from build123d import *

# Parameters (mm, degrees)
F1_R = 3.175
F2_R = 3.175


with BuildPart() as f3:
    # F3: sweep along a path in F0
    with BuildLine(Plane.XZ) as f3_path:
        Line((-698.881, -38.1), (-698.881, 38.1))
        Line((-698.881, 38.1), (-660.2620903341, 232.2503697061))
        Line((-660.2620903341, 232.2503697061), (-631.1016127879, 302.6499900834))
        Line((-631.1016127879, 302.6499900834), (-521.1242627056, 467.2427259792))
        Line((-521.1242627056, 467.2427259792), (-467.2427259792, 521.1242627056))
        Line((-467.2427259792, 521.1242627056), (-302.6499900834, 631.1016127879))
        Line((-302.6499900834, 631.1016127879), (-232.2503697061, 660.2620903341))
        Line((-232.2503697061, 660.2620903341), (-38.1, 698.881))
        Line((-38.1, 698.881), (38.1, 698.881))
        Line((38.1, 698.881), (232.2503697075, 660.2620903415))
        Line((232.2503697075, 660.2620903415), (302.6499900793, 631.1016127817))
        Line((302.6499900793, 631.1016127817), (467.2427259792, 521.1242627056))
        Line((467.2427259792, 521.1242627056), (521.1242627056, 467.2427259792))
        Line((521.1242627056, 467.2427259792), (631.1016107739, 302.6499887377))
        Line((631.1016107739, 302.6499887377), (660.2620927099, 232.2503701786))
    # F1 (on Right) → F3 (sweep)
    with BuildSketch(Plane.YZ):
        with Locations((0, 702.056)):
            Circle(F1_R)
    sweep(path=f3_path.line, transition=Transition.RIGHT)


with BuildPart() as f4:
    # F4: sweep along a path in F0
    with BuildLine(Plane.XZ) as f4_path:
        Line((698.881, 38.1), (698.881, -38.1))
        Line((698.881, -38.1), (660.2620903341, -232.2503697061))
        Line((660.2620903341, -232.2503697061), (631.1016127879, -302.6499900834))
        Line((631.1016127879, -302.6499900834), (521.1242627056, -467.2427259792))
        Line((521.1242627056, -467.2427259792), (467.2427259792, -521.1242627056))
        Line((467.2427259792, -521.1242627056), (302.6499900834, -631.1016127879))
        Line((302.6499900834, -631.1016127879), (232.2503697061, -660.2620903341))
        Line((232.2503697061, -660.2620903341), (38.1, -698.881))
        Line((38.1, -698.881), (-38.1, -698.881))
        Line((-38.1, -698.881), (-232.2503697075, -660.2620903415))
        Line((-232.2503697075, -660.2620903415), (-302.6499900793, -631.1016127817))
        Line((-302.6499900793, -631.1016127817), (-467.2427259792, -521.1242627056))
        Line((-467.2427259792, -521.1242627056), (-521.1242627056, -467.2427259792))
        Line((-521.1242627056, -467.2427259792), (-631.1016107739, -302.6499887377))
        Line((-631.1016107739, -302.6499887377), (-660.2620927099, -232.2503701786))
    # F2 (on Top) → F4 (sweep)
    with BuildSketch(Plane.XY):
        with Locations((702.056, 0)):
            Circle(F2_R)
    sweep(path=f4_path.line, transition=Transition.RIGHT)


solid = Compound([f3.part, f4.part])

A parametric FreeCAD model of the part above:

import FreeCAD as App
import Part
import Sketcher
from FreeCAD import Vector
Q = App.Units.Quantity

doc = App.newDocument("Part")
params = doc.addObject("Spreadsheet::Sheet", "Params")
for row, (alias, value) in enumerate([
    ("sketch1_diameter", "0.25 in"),
    ("sketch2_width", "3 in"),
    ("sketch2_length", "3 in"),
    ("sketch3_diameter", "0.25 in"),
    ("sketch4_width", "3 in"),
    ("sketch4_length", "3 in"),
], start=1):
    params.set(f"A{row}", alias)
    params.set(f"B{row}", "=" + value)
    params.setAlias(f"B{row}", alias)

body = doc.addObject("PartDesign::Body", "Body")

# Sketch on YZ plane
sketch1 = body.newObject("Sketcher::SketchObject", "Sketch")
sketch1.AttachmentSupport = (doc.getObject("YZ_Plane"), [""])
sketch1.MapMode = "FlatFace"
sketch1.addGeometry(Part.Circle(Vector(0, 702.1, 0), Vector(0, 0, 1), 3.2), False)
sketch1.addConstraint(Sketcher.Constraint("PointOnObject", 0, 3, -2))
sketch1.addConstraint(Sketcher.Constraint("Diameter", 0, Q("0.25 in")))
sketch1.addConstraint(Sketcher.Constraint("DistanceY", -1, 1, 0, 3, Q("27.64 in")))
sketch1.setExpression("Constraints[1]", "Params.sketch1_diameter")

# Sketch on XZ plane
sketch2 = body.newObject("Sketcher::SketchObject", "Sketch001")
sketch2.AttachmentSupport = (doc.getObject("XZ_Plane"), [""])
sketch2.MapMode = "FlatFace"
sketch2.addGeometry(Part.LineSegment(Vector(-699, -38, 0), Vector(-699, 38, 0)), False)
sketch2.addGeometry(Part.LineSegment(Vector(-699, 38, 0), Vector(-660, 232, 0)), False)
sketch2.addGeometry(Part.LineSegment(Vector(-660, 232, 0), Vector(-631, 303, 0)), False)
sketch2.addGeometry(Part.LineSegment(Vector(-631, 303, 0), Vector(-521, 467, 0)), False)
sketch2.addGeometry(Part.LineSegment(Vector(-521, 467, 0), Vector(-467, 521, 0)), False)
sketch2.addGeometry(Part.LineSegment(Vector(-467, 521, 0), Vector(-303, 631, 0)), False)
sketch2.addGeometry(Part.LineSegment(Vector(-303, 631, 0), Vector(-232, 660, 0)), False)
sketch2.addGeometry(Part.LineSegment(Vector(-232, 660, 0), Vector(-38, 699, 0)), False)
sketch2.addGeometry(Part.LineSegment(Vector(-38, 699, 0), Vector(38, 699, 0)), False)
sketch2.addGeometry(Part.LineSegment(Vector(38, 699, 0), Vector(232, 660, 0)), False)
sketch2.addGeometry(Part.LineSegment(Vector(232, 660, 0), Vector(303, 631, 0)), False)
sketch2.addGeometry(Part.LineSegment(Vector(303, 631, 0), Vector(467, 521, 0)), False)
sketch2.addGeometry(Part.LineSegment(Vector(467, 521, 0), Vector(521, 467, 0)), False)
sketch2.addGeometry(Part.LineSegment(Vector(521, 467, 0), Vector(631, 303, 0)), False)
sketch2.addGeometry(Part.LineSegment(Vector(631, 303, 0), Vector(660, 232, 0)), False)
sketch2.addConstraint(Sketcher.Constraint("Coincident", 0, 2, 1, 1))
sketch2.addConstraint(Sketcher.Constraint("Coincident", 1, 2, 2, 1))
sketch2.addConstraint(Sketcher.Constraint("Coincident", 2, 2, 3, 1))
sketch2.addConstraint(Sketcher.Constraint("Coincident", 3, 2, 4, 1))
sketch2.addConstraint(Sketcher.Constraint("Coincident", 4, 2, 5, 1))
sketch2.addConstraint(Sketcher.Constraint("Coincident", 5, 2, 6, 1))
sketch2.addConstraint(Sketcher.Constraint("Coincident", 6, 2, 7, 1))
sketch2.addConstraint(Sketcher.Constraint("Coincident", 7, 2, 8, 1))
sketch2.addConstraint(Sketcher.Constraint("Coincident", 8, 2, 9, 1))
sketch2.addConstraint(Sketcher.Constraint("Coincident", 9, 2, 10, 1))
sketch2.addConstraint(Sketcher.Constraint("Coincident", 10, 2, 11, 1))
sketch2.addConstraint(Sketcher.Constraint("Coincident", 11, 2, 12, 1))
sketch2.addConstraint(Sketcher.Constraint("Coincident", 12, 2, 13, 1))
sketch2.addConstraint(Sketcher.Constraint("Coincident", 13, 2, 14, 1))
sketch2.addConstraint(Sketcher.Constraint("Vertical", 0))
sketch2.addConstraint(Sketcher.Constraint("Horizontal", 8))
sketch2.addConstraint(Sketcher.Constraint("Symmetric", 6, 2, 9, 2, -2))
sketch2.addConstraint(Sketcher.Constraint("Symmetric", 5, 2, 10, 2, -2))
sketch2.addConstraint(Sketcher.Constraint("Symmetric", 4, 2, 11, 2, -2))
sketch2.addConstraint(Sketcher.Constraint("Symmetric", 3, 2, 12, 2, -2))
sketch2.addConstraint(Sketcher.Constraint("Symmetric", 2, 2, 13, 2, -2))
sketch2.addConstraint(Sketcher.Constraint("Symmetric", 1, 2, 14, 2, -2))
sketch2.addConstraint(Sketcher.Constraint("Perpendicular", 1, 9))
sketch2.addConstraint(Sketcher.Constraint("Perpendicular", 2, 10))
sketch2.addConstraint(Sketcher.Constraint("Perpendicular", 3, 11))
sketch2.addConstraint(Sketcher.Constraint("Perpendicular", 4, 12))
sketch2.addConstraint(Sketcher.Constraint("Equal", 8, 0))
sketch2.addConstraint(Sketcher.Constraint("Equal", 1, 3))
sketch2.addConstraint(Sketcher.Constraint("Equal", 2, 4))
sketch2.addConstraint(Sketcher.Constraint("Equal", 3, 5))
sketch2.addConstraint(Sketcher.Constraint("Equal", 4, 6))
sketch2.addConstraint(Sketcher.Constraint("Equal", 5, 7))
sketch2.addConstraint(Sketcher.Constraint("Equal", 7, 9))
sketch2.addConstraint(Sketcher.Constraint("DistanceX", 8, 1, 8, 2, Q("3 in")))
sketch2.addConstraint(Sketcher.Constraint("Distance", 2, Q("3 in")))
sketch2.addConstraint(Sketcher.Constraint("DistanceY", 0, 1, -1, 1, Q("1.5 in")))
sketch2.addConstraint(Sketcher.Constraint("Angle", 2, Q("67.5 deg")))
sketch2.addConstraint(Sketcher.Constraint("Angle", 1, Q("78.75 deg")))
sketch2.addConstraint(Sketcher.Constraint("Angle", 3, Q("56.25 deg")))
sketch2.addConstraint(Sketcher.Constraint("DistanceX", 0, 1, -1, 1, Q("27.515 in")))
sketch2.setExpression("Constraints[33]", "Params.sketch2_width")
sketch2.setExpression("Constraints[34]", "Params.sketch2_length")
doc.recompute()

additivepipe = body.newObject("PartDesign::AdditivePipe", "AdditivePipe")
additivepipe.Profile = sketch1
additivepipe.Spine = (sketch2, ["Edge1", "Edge2", "Edge3", "Edge4", "Edge5", "Edge6", "Edge7", "Edge8", "Edge9", "Edge10", "Edge11", "Edge12", "Edge13", "Edge14", "Edge15"])
additivepipe.Transition = "Right corner"
body2 = doc.addObject("PartDesign::Body", "Body001")

# Sketch on XY plane
sketch3 = body2.newObject("Sketcher::SketchObject", "Sketch002")
sketch3.AttachmentSupport = (doc.getObject("XY_Plane001"), [""])
sketch3.MapMode = "FlatFace"
sketch3.addGeometry(Part.Circle(Vector(702.1, 0, 0), Vector(0, 0, 1), 3.2), False)
sketch3.addConstraint(Sketcher.Constraint("PointOnObject", 0, 3, -1))
sketch3.addConstraint(Sketcher.Constraint("Diameter", 0, Q("0.25 in")))
sketch3.addConstraint(Sketcher.Constraint("DistanceX", -1, 1, 0, 3, Q("27.64 in")))
sketch3.setExpression("Constraints[1]", "Params.sketch3_diameter")

# Sketch on XZ plane
sketch4 = body2.newObject("Sketcher::SketchObject", "Sketch003")
sketch4.AttachmentSupport = (doc.getObject("XZ_Plane001"), [""])
sketch4.MapMode = "FlatFace"
sketch4.addGeometry(Part.LineSegment(Vector(699, 38, 0), Vector(699, -38, 0)), False)
sketch4.addGeometry(Part.LineSegment(Vector(699, -38, 0), Vector(660, -232, 0)), False)
sketch4.addGeometry(Part.LineSegment(Vector(660, -232, 0), Vector(631, -303, 0)), False)
sketch4.addGeometry(Part.LineSegment(Vector(631, -303, 0), Vector(521, -467, 0)), False)
sketch4.addGeometry(Part.LineSegment(Vector(521, -467, 0), Vector(467, -521, 0)), False)
sketch4.addGeometry(Part.LineSegment(Vector(467, -521, 0), Vector(303, -631, 0)), False)
sketch4.addGeometry(Part.LineSegment(Vector(303, -631, 0), Vector(232, -660, 0)), False)
sketch4.addGeometry(Part.LineSegment(Vector(232, -660, 0), Vector(38, -699, 0)), False)
sketch4.addGeometry(Part.LineSegment(Vector(38, -699, 0), Vector(-38, -699, 0)), False)
sketch4.addGeometry(Part.LineSegment(Vector(-38, -699, 0), Vector(-232, -660, 0)), False)
sketch4.addGeometry(Part.LineSegment(Vector(-232, -660, 0), Vector(-303, -631, 0)), False)
sketch4.addGeometry(Part.LineSegment(Vector(-303, -631, 0), Vector(-467, -521, 0)), False)
sketch4.addGeometry(Part.LineSegment(Vector(-467, -521, 0), Vector(-521, -467, 0)), False)
sketch4.addGeometry(Part.LineSegment(Vector(-521, -467, 0), Vector(-631, -303, 0)), False)
sketch4.addGeometry(Part.LineSegment(Vector(-631, -303, 0), Vector(-660, -232, 0)), False)
sketch4.addConstraint(Sketcher.Constraint("Coincident", 0, 2, 1, 1))
sketch4.addConstraint(Sketcher.Constraint("Coincident", 1, 2, 2, 1))
sketch4.addConstraint(Sketcher.Constraint("Coincident", 2, 2, 3, 1))
sketch4.addConstraint(Sketcher.Constraint("Coincident", 3, 2, 4, 1))
sketch4.addConstraint(Sketcher.Constraint("Coincident", 4, 2, 5, 1))
sketch4.addConstraint(Sketcher.Constraint("Coincident", 5, 2, 6, 1))
sketch4.addConstraint(Sketcher.Constraint("Coincident", 6, 2, 7, 1))
sketch4.addConstraint(Sketcher.Constraint("Coincident", 7, 2, 8, 1))
sketch4.addConstraint(Sketcher.Constraint("Coincident", 8, 2, 9, 1))
sketch4.addConstraint(Sketcher.Constraint("Coincident", 9, 2, 10, 1))
sketch4.addConstraint(Sketcher.Constraint("Coincident", 10, 2, 11, 1))
sketch4.addConstraint(Sketcher.Constraint("Coincident", 11, 2, 12, 1))
sketch4.addConstraint(Sketcher.Constraint("Coincident", 12, 2, 13, 1))
sketch4.addConstraint(Sketcher.Constraint("Coincident", 13, 2, 14, 1))
sketch4.addConstraint(Sketcher.Constraint("Vertical", 0))
sketch4.addConstraint(Sketcher.Constraint("Horizontal", 8))
sketch4.addConstraint(Sketcher.Constraint("Symmetric", 6, 2, 9, 2, -2))
sketch4.addConstraint(Sketcher.Constraint("Symmetric", 5, 2, 10, 2, -2))
sketch4.addConstraint(Sketcher.Constraint("Symmetric", 4, 2, 11, 2, -2))
sketch4.addConstraint(Sketcher.Constraint("Symmetric", 3, 2, 12, 2, -2))
sketch4.addConstraint(Sketcher.Constraint("Symmetric", 2, 2, 13, 2, -2))
sketch4.addConstraint(Sketcher.Constraint("Symmetric", 1, 2, 14, 2, -2))
sketch4.addConstraint(Sketcher.Constraint("Perpendicular", 1, 9))
sketch4.addConstraint(Sketcher.Constraint("Perpendicular", 2, 10))
sketch4.addConstraint(Sketcher.Constraint("Perpendicular", 3, 11))
sketch4.addConstraint(Sketcher.Constraint("Perpendicular", 4, 12))
sketch4.addConstraint(Sketcher.Constraint("Equal", 8, 0))
sketch4.addConstraint(Sketcher.Constraint("Equal", 1, 3))
sketch4.addConstraint(Sketcher.Constraint("Equal", 2, 4))
sketch4.addConstraint(Sketcher.Constraint("Equal", 3, 5))
sketch4.addConstraint(Sketcher.Constraint("Equal", 4, 6))
sketch4.addConstraint(Sketcher.Constraint("Equal", 5, 7))
sketch4.addConstraint(Sketcher.Constraint("Equal", 7, 9))
sketch4.addConstraint(Sketcher.Constraint("DistanceX", 8, 2, 8, 1, Q("3 in")))
sketch4.addConstraint(Sketcher.Constraint("Distance", 2, Q("3 in")))
sketch4.addConstraint(Sketcher.Constraint("DistanceY", -1, 1, 0, 1, Q("1.5 in")))
sketch4.addConstraint(Sketcher.Constraint("Angle", 2, Q("-112.5 deg")))
sketch4.addConstraint(Sketcher.Constraint("Angle", 1, Q("-101.25 deg")))
sketch4.addConstraint(Sketcher.Constraint("Angle", 3, Q("-123.75 deg")))
sketch4.addConstraint(Sketcher.Constraint("DistanceX", -1, 1, 0, 1, Q("27.515 in")))
sketch4.setExpression("Constraints[33]", "Params.sketch4_width")
sketch4.setExpression("Constraints[34]", "Params.sketch4_length")
doc.recompute()

additivepipe2 = body2.newObject("PartDesign::AdditivePipe", "AdditivePipe001")
additivepipe2.Profile = sketch3
additivepipe2.Spine = (sketch4, ["Edge1", "Edge2", "Edge3", "Edge4", "Edge5", "Edge6", "Edge7", "Edge8", "Edge9", "Edge10", "Edge11", "Edge12", "Edge13", "Edge14", "Edge15"])
additivepipe2.Transition = "Right corner"

doc.recompute()
